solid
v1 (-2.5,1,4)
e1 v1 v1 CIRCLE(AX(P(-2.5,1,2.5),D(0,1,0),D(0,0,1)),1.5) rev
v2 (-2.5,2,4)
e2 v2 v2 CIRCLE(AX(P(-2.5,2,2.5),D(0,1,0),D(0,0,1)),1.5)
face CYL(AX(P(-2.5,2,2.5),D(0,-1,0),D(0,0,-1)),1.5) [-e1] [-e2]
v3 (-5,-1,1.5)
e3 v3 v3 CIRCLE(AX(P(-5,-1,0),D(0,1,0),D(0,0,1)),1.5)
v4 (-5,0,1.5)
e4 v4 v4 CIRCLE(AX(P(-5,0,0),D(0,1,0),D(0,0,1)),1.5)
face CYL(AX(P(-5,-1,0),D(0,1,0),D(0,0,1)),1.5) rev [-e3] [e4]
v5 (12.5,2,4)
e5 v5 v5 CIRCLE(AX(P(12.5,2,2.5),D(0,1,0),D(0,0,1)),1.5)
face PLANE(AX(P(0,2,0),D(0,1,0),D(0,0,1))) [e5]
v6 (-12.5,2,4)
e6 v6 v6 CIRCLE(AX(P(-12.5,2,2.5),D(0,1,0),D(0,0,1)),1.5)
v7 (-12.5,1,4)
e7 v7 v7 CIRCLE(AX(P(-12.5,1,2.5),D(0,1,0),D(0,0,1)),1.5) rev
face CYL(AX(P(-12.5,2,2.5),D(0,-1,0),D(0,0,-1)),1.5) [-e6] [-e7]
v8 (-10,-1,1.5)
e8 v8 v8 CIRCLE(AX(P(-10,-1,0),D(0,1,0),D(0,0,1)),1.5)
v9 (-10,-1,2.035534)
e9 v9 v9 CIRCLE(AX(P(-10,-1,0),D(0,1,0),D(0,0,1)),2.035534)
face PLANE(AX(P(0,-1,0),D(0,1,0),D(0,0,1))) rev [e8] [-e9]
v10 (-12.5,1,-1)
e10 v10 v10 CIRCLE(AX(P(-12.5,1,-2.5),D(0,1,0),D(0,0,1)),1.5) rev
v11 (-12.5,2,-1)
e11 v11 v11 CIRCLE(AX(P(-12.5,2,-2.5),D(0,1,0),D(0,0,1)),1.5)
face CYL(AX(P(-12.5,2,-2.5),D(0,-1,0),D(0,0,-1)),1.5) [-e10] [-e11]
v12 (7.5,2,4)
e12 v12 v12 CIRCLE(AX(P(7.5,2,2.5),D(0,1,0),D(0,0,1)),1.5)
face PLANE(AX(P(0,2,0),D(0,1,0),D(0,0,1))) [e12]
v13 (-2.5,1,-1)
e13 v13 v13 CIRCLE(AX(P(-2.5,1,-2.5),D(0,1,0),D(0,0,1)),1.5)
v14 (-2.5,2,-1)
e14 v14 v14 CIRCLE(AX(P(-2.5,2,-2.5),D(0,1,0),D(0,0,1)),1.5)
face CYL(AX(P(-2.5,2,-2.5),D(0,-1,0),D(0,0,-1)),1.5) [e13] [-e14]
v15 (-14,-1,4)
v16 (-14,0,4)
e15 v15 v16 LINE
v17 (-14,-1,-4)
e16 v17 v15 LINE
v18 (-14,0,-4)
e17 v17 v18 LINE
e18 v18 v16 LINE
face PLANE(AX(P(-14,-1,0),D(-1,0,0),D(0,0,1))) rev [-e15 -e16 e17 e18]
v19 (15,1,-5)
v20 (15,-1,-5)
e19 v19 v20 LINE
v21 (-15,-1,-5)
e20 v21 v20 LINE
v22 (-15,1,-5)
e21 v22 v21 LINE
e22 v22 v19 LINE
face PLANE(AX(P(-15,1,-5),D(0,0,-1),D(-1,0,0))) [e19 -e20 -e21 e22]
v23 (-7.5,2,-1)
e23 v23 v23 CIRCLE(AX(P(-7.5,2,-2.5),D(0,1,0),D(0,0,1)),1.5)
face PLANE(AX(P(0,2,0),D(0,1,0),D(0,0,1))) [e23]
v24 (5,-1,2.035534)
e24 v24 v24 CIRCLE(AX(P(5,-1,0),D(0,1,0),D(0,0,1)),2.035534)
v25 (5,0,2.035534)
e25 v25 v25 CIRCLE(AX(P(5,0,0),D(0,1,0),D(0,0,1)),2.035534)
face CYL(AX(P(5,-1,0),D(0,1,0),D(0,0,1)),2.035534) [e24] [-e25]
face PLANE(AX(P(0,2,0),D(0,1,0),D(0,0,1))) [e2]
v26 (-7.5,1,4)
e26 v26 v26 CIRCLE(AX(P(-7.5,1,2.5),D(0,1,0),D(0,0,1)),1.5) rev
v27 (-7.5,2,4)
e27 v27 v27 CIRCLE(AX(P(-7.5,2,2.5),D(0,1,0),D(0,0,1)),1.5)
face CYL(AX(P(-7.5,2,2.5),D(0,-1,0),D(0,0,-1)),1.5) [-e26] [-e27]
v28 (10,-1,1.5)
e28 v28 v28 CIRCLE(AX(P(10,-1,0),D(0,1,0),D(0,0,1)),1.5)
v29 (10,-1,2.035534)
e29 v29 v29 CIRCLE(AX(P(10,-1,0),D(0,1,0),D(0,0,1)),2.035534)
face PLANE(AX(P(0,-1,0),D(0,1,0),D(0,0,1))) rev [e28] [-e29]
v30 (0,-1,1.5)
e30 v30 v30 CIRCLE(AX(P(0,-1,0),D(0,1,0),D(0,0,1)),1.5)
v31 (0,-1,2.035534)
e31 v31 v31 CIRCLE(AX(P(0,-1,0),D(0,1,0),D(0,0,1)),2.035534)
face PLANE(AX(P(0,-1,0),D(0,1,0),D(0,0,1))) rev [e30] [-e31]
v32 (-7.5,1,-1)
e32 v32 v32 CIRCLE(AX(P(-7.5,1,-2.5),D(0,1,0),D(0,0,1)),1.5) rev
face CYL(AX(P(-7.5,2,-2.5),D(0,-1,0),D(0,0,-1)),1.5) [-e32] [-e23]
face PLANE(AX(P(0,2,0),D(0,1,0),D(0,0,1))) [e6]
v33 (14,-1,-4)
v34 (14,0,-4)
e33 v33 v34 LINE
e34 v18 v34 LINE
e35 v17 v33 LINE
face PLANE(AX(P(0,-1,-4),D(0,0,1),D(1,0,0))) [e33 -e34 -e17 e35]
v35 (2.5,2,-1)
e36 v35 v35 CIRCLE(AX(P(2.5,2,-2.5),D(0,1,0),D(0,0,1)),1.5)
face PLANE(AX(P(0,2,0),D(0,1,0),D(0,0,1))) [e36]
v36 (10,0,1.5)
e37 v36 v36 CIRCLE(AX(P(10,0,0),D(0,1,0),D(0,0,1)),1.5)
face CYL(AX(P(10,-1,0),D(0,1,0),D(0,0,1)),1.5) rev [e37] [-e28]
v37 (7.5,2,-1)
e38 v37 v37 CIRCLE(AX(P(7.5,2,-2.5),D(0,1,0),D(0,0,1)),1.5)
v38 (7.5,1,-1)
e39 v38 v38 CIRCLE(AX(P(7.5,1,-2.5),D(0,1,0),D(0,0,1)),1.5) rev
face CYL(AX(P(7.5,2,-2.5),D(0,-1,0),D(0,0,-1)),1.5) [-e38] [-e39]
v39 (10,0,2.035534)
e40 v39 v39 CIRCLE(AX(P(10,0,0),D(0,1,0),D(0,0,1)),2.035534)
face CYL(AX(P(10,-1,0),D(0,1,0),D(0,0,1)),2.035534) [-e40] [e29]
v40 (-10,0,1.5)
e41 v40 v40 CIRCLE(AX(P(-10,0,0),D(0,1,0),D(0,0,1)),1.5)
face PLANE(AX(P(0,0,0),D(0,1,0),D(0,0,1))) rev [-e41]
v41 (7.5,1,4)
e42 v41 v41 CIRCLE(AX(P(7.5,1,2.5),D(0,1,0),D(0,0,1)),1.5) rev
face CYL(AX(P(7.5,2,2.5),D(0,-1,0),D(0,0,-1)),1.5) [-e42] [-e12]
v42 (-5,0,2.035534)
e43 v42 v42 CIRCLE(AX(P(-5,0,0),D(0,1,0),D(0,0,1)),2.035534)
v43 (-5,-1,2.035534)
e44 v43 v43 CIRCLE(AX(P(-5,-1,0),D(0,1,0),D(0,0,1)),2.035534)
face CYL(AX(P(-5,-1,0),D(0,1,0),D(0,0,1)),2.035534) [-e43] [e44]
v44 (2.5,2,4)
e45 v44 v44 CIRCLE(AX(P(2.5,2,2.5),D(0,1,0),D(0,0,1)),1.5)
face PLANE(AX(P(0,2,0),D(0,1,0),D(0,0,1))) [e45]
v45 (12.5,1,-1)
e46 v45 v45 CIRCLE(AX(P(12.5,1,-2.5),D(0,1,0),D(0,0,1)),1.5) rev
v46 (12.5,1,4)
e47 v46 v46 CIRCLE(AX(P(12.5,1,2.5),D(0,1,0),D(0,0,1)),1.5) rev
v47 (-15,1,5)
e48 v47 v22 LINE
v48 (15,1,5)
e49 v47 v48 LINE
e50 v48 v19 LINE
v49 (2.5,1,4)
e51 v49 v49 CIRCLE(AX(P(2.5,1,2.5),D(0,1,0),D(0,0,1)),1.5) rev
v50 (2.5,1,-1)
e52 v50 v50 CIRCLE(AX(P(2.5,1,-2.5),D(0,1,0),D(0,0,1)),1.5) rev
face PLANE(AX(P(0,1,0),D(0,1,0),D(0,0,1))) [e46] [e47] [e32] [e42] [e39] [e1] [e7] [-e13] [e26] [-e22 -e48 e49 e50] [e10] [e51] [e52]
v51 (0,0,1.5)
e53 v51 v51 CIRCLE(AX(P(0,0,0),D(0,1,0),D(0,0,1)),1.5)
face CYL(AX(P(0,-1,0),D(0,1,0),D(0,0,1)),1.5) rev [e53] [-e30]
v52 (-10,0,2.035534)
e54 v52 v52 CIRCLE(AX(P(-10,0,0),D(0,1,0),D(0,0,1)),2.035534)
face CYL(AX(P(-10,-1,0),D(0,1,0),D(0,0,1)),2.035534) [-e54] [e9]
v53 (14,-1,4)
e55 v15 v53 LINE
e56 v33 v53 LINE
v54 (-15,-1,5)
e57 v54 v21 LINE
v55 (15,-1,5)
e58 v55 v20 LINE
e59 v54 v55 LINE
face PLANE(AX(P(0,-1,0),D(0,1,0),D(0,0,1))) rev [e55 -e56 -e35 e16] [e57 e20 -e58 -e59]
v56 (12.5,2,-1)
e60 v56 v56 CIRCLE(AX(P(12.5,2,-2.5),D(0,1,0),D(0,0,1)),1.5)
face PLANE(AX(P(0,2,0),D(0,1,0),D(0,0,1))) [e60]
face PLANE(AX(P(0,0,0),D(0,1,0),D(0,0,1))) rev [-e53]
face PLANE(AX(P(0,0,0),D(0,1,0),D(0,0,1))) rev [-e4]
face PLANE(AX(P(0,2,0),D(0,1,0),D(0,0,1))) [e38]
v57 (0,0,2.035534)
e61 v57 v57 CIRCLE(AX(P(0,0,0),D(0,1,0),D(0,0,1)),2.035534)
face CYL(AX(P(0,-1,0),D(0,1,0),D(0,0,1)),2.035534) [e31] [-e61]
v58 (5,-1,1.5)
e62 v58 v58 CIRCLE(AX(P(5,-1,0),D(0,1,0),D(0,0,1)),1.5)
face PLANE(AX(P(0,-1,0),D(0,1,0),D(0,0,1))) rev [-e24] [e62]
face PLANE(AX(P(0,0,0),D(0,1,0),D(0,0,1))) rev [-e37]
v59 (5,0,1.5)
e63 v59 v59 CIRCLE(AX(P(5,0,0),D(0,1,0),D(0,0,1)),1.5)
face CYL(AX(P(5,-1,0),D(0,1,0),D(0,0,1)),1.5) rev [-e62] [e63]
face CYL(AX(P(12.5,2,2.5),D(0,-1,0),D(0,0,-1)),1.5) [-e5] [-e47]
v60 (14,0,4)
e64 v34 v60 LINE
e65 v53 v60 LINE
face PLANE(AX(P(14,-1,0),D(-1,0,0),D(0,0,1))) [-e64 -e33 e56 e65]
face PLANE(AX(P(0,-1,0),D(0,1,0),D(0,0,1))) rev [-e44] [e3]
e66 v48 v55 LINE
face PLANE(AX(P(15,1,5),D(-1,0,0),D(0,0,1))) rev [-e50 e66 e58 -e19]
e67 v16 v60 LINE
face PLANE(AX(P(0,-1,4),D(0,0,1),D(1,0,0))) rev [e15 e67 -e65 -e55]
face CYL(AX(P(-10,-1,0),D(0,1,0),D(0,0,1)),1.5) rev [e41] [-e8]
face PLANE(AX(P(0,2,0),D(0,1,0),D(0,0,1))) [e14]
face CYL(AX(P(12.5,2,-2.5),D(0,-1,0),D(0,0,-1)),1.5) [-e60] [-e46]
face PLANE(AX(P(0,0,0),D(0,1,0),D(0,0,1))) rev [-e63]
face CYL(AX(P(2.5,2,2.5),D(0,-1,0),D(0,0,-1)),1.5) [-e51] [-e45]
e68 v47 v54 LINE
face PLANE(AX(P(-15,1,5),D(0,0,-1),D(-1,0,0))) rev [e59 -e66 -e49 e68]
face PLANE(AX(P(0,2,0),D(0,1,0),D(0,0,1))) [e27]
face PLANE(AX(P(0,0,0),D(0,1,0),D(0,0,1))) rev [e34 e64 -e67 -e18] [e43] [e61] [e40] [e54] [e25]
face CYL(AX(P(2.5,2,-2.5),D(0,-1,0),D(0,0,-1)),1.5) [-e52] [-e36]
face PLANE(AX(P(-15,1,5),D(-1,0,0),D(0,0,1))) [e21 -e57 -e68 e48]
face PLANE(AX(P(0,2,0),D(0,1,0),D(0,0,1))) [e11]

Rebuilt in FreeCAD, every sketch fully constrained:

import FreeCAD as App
import Part
import Sketcher
from FreeCAD import Vector

doc = App.newDocument("Part")
body = doc.addObject("PartDesign::Body", "Body")

# Sketch on XZ plane
sketch1 = body.newObject("Sketcher::SketchObject", "Sketch")
sketch1.AttachmentSupport = (doc.getObject("XZ_Plane"), [""])
sketch1.MapMode = "FlatFace"
sketch1.addGeometry(Part.Circle(Vector(-2.5, -2.5, 0), Vector(0, 0, 1), 1.5), False)
sketch1.addConstraint(Sketcher.Constraint("Diameter", 0, 3.0))
sketch1.addConstraint(Sketcher.Constraint("DistanceX", 0, 3, -1, 1, 2.5))
sketch1.addConstraint(Sketcher.Constraint("DistanceY", 0, 3, -1, 1, 2.5))
pad1 = body.newObject("PartDesign::Pad", "Pad")
pad1.Profile = sketch1
pad1.Length = 2
pad1.Reversed = True
body2 = doc.addObject("PartDesign::Body", "Body001")

# Sketch on XZ plane
sketch2 = body2.newObject("Sketcher::SketchObject", "Sketch001")
sketch2.AttachmentSupport = (doc.getObject("XZ_Plane001"), [""])
sketch2.MapMode = "FlatFace"
sketch2.addGeometry(Part.Circle(Vector(-7.5, -2.5, 0), Vector(0, 0, 1), 1.5), False)
sketch2.addConstraint(Sketcher.Constraint("Diameter", 0, 3.0))
sketch2.addConstraint(Sketcher.Constraint("DistanceX", 0, 3, -1, 1, 7.5))
sketch2.addConstraint(Sketcher.Constraint("DistanceY", 0, 3, -1, 1, 2.5))
pad2 = body2.newObject("PartDesign::Pad", "Pad001")
pad2.Profile = sketch2
pad2.Length = 2
pad2.Reversed = True
body3 = doc.addObject("PartDesign::Body", "Body002")

# Sketch on XZ plane
sketch3 = body3.newObject("Sketcher::SketchObject", "Sketch002")
sketch3.AttachmentSupport = (doc.getObject("XZ_Plane002"), [""])
sketch3.MapMode = "FlatFace"
sketch3.addGeometry(Part.Circle(Vector(-12.5, -2.5, 0), Vector(0, 0, 1), 1.5), False)
sketch3.addConstraint(Sketcher.Constraint("Diameter", 0, 3.0))
sketch3.addConstraint(Sketcher.Constraint("DistanceX", 0, 3, -1, 1, 12.5))
sketch3.addConstraint(Sketcher.Constraint("DistanceY", 0, 3, -1, 1, 2.5))
pad3 = body3.newObject("PartDesign::Pad", "Pad002")
pad3.Profile = sketch3
pad3.Length = 2
pad3.Reversed = True
body4 = doc.addObject("PartDesign::Body", "Body003")

# Sketch on XZ plane
sketch4 = body4.newObject("Sketcher::SketchObject", "Sketch003")
sketch4.AttachmentSupport = (doc.getObject("XZ_Plane003"), [""])
sketch4.MapMode = "FlatFace"
sketch4.addGeometry(Part.Circle(Vector(-12.5, 2.5, 0), Vector(0, 0, 1), 1.5), False)
sketch4.addConstraint(Sketcher.Constraint("Diameter", 0, 3.0))
sketch4.addConstraint(Sketcher.Constraint("DistanceX", 0, 3, -1, 1, 12.5))
sketch4.addConstraint(Sketcher.Constraint("DistanceY", -1, 1, 0, 3, 2.5))
pad4 = body4.newObject("PartDesign::Pad", "Pad003")
pad4.Profile = sketch4
pad4.Length = 2
pad4.Reversed = True
body5 = doc.addObject("PartDesign::Body", "Body004")

# Sketch on XZ plane
sketch5 = body5.newObject("Sketcher::SketchObject", "Sketch004")
sketch5.AttachmentSupport = (doc.getObject("XZ_Plane004"), [""])
sketch5.MapMode = "FlatFace"
sketch5.addGeometry(Part.Circle(Vector(-7.5, 2.5, 0), Vector(0, 0, 1), 1.5), False)
sketch5.addConstraint(Sketcher.Constraint("Diameter", 0, 3.0))
sketch5.addConstraint(Sketcher.Constraint("DistanceX", 0, 3, -1, 1, 7.5))
sketch5.addConstraint(Sketcher.Constraint("DistanceY", -1, 1, 0, 3, 2.5))
pad5 = body5.newObject("PartDesign::Pad", "Pad004")
pad5.Profile = sketch5
pad5.Length = 2
pad5.Reversed = True
body6 = doc.addObject("PartDesign::Body", "Body005")

# Sketch on XZ plane
sketch6 = body6.newObject("Sketcher::SketchObject", "Sketch005")
sketch6.AttachmentSupport = (doc.getObject("XZ_Plane005"), [""])
sketch6.MapMode = "FlatFace"
sketch6.addGeometry(Part.Circle(Vector(-2.5, 2.5, 0), Vector(0, 0, 1), 1.5), False)
sketch6.addConstraint(Sketcher.Constraint("Diameter", 0, 3.0))
sketch6.addConstraint(Sketcher.Constraint("DistanceX", 0, 3, -1, 1, 2.5))
sketch6.addConstraint(Sketcher.Constraint("DistanceY", -1, 1, 0, 3, 2.5))
pad6 = body6.newObject("PartDesign::Pad", "Pad005")
pad6.Profile = sketch6
pad6.Length = 2
pad6.Reversed = True
body7 = doc.addObject("PartDesign::Body", "Body006")

# Sketch on XZ plane
sketch7 = body7.newObject("Sketcher::SketchObject", "Sketch006")
sketch7.AttachmentSupport = (doc.getObject("XZ_Plane006"), [""])
sketch7.MapMode = "FlatFace"
sketch7.addGeometry(Part.Circle(Vector(2.5, -2.5, 0), Vector(0, 0, 1), 1.5), False)
sketch7.addConstraint(Sketcher.Constraint("Diameter", 0, 3.0))
sketch7.addConstraint(Sketcher.Constraint("DistanceX", -1, 1, 0, 3, 2.5))
sketch7.addConstraint(Sketcher.Constraint("DistanceY", 0, 3, -1, 1, 2.5))
pad7 = body7.newObject("PartDesign::Pad", "Pad006")
pad7.Profile = sketch7
pad7.Length = 2
pad7.Reversed = True
body8 = doc.addObject("PartDesign::Body", "Body007")

# Sketch on XZ plane
sketch8 = body8.newObject("Sketcher::SketchObject", "Sketch007")
sketch8.AttachmentSupport = (doc.getObject("XZ_Plane007"), [""])
sketch8.MapMode = "FlatFace"
sketch8.addGeometry(Part.Circle(Vector(7.5, -2.5, 0), Vector(0, 0, 1), 1.5), False)
sketch8.addConstraint(Sketcher.Constraint("Diameter", 0, 3.0))
sketch8.addConstraint(Sketcher.Constraint("DistanceX", -1, 1, 0, 3, 7.5))
sketch8.addConstraint(Sketcher.Constraint("DistanceY", 0, 3, -1, 1, 2.5))
pad8 = body8.newObject("PartDesign::Pad", "Pad007")
pad8.Profile = sketch8
pad8.Length = 2
pad8.Reversed = True
body9 = doc.addObject("PartDesign::Body", "Body008")

# Sketch on XZ plane
sketch9 = body9.newObject("Sketcher::SketchObject", "Sketch008")
sketch9.AttachmentSupport = (doc.getObject("XZ_Plane008"), [""])
sketch9.MapMode = "FlatFace"
sketch9.addGeometry(Part.Circle(Vector(12.5, -2.5, 0), Vector(0, 0, 1), 1.5), False)
sketch9.addConstraint(Sketcher.Constraint("Diameter", 0, 3.0))
sketch9.addConstraint(Sketcher.Constraint("DistanceX", -1, 1, 0, 3, 12.5))
sketch9.addConstraint(Sketcher.Constraint("DistanceY", 0, 3, -1, 1, 2.5))
pad9 = body9.newObject("PartDesign::Pad", "Pad008")
pad9.Profile = sketch9
pad9.Length = 2
pad9.Reversed = True
body10 = doc.addObject("PartDesign::Body", "Body009")

# Sketch on XZ plane
sketch10 = body10.newObject("Sketcher::SketchObject", "Sketch009")
sketch10.AttachmentSupport = (doc.getObject("XZ_Plane009"), [""])
sketch10.MapMode = "FlatFace"
sketch10.addGeometry(Part.Circle(Vector(12.5, 2.5, 0), Vector(0, 0, 1), 1.5), False)
sketch10.addConstraint(Sketcher.Constraint("Diameter", 0, 3.0))
sketch10.addConstraint(Sketcher.Constraint("DistanceX", -1, 1, 0, 3, 12.5))
sketch10.addConstraint(Sketcher.Constraint("DistanceY", -1, 1, 0, 3, 2.5))
pad10 = body10.newObject("PartDesign::Pad", "Pad009")
pad10.Profile = sketch10
pad10.Length = 2
pad10.Reversed = True
body11 = doc.addObject("PartDesign::Body", "Body010")

# Sketch on XZ plane
sketch11 = body11.newObject("Sketcher::SketchObject", "Sketch010")
sketch11.AttachmentSupport = (doc.getObject("XZ_Plane010"), [""])
sketch11.MapMode = "FlatFace"
sketch11.addGeometry(Part.Circle(Vector(7.5, 2.5, 0), Vector(0, 0, 1), 1.5), False)
sketch11.addConstraint(Sketcher.Constraint("Diameter", 0, 3.0))
sketch11.addConstraint(Sketcher.Constraint("DistanceX", -1, 1, 0, 3, 7.5))
sketch11.addConstraint(Sketcher.Constraint("DistanceY", -1, 1, 0, 3, 2.5))
pad11 = body11.newObject("PartDesign::Pad", "Pad010")
pad11.Profile = sketch11
pad11.Length = 2
pad11.Reversed = True
body12 = doc.addObject("PartDesign::Body", "Body011")

# Sketch on XZ plane
sketch12 = body12.newObject("Sketcher::SketchObject", "Sketch011")
sketch12.AttachmentSupport = (doc.getObject("XZ_Plane011"), [""])
sketch12.MapMode = "FlatFace"
sketch12.addGeometry(Part.Circle(Vector(2.5, 2.5, 0), Vector(0, 0, 1), 1.5), False)
sketch12.addConstraint(Sketcher.Constraint("Diameter", 0, 3.0))
sketch12.addConstraint(Sketcher.Constraint("DistanceX", -1, 1, 0, 3, 2.5))
sketch12.addConstraint(Sketcher.Constraint("DistanceY", -1, 1, 0, 3, 2.5))
pad12 = body12.newObject("PartDesign::Pad", "Pad011")
pad12.Profile = sketch12
pad12.Length = 2
pad12.Reversed = True
body.AllowCompound = True
doc.recompute()

boolean = body.newObject("PartDesign::Boolean", "Boolean")
boolean.Type = "Fuse"
boolean.addObjects([body2])
doc.recompute()

boolean2 = body.newObject("PartDesign::Boolean", "Boolean001")
boolean2.Type = "Fuse"
boolean2.addObjects([body3])
doc.recompute()

boolean3 = body.newObject("PartDesign::Boolean", "Boolean002")
boolean3.Type = "Fuse"
boolean3.addObjects([body4])
doc.recompute()

boolean4 = body.newObject("PartDesign::Boolean", "Boolean003")
boolean4.Type = "Fuse"
boolean4.addObjects([body5])
doc.recompute()

boolean5 = body.newObject("PartDesign::Boolean", "Boolean004")
boolean5.Type = "Fuse"
boolean5.addObjects([body6])
doc.recompute()

boolean6 = body.newObject("PartDesign::Boolean", "Boolean005")
boolean6.Type = "Fuse"
boolean6.addObjects([body7])
doc.recompute()

boolean7 = body.newObject("PartDesign::Boolean", "Boolean006")
boolean7.Type = "Fuse"
boolean7.addObjects([body8])
doc.recompute()

boolean8 = body.newObject("PartDesign::Boolean", "Boolean007")
boolean8.Type = "Fuse"
boolean8.addObjects([body9])
doc.recompute()

boolean9 = body.newObject("PartDesign::Boolean", "Boolean008")
boolean9.Type = "Fuse"
boolean9.addObjects([body10])
doc.recompute()

boolean10 = body.newObject("PartDesign::Boolean", "Boolean009")
boolean10.Type = "Fuse"
boolean10.addObjects([body11])
doc.recompute()

boolean11 = body.newObject("PartDesign::Boolean", "Boolean010")
boolean11.Type = "Fuse"
boolean11.addObjects([body12])

# Sketch on XZ plane
sketch13 = body.newObject("Sketcher::SketchObject", "Sketch012")
sketch13.AttachmentSupport = (doc.getObject("XZ_Plane"), [""])
sketch13.MapMode = "FlatFace"
sketch13.addGeometry(Part.LineSegment(Vector(-15, -5, 0), Vector(-15, 5, 0)), False)
sketch13.addGeometry(Part.LineSegment(Vector(-15, 5, 0), Vector(15, 5, 0)), False)
sketch13.addGeometry(Part.LineSegment(Vector(15, 5, 0), Vector(15, -5, 0)), False)
sketch13.addGeometry(Part.LineSegment(Vector(15, -5, 0), Vector(-15, -5, 0)), False)
sketch13.addConstraint(Sketcher.Constraint("Coincident", 0, 2, 1, 1))
sketch13.addConstraint(Sketcher.Constraint("Coincident", 1, 2, 2, 1))
sketch13.addConstraint(Sketcher.Constraint("Coincident", 2, 2, 3, 1))
sketch13.addConstraint(Sketcher.Constraint("Coincident", 3, 2, 0, 1))
sketch13.addConstraint(Sketcher.Constraint("Vertical", 0))
sketch13.addConstraint(Sketcher.Constraint("Horizontal", 1))
sketch13.addConstraint(Sketcher.Constraint("Vertical", 2))
sketch13.addConstraint(Sketcher.Constraint("Horizontal", 3))
sketch13.addConstraint(Sketcher.Constraint("Symmetric", 0, 2, 2, 2, -1, 1))
sketch13.addConstraint(Sketcher.Constraint("DistanceX", 1, 1, 1, 2, 30.0))
sketch13.addConstraint(Sketcher.Constraint("DistanceY", 0, 1, 0, 2, 10.0))
pad13 = body.newObject("PartDesign::Pad", "Pad012")
pad13.Profile = sketch13
pad13.Length = 1
pad13.Reversed = True

# Sketch on XZ plane
sketch14 = body.newObject("Sketcher::SketchObject", "Sketch013")
sketch14.AttachmentSupport = (doc.getObject("XZ_Plane"), [""])
sketch14.MapMode = "FlatFace"
sketch14.addGeometry(Part.LineSegment(Vector(-15, -5, 0), Vector(-15, 5, 0)), False)
sketch14.addGeometry(Part.LineSegment(Vector(-15, 5, 0), Vector(15, 5, 0)), False)
sketch14.addGeometry(Part.LineSegment(Vector(15, 5, 0), Vector(15, -5, 0)), False)
sketch14.addGeometry(Part.LineSegment(Vector(15, -5, 0), Vector(-15, -5, 0)), False)
sketch14.addGeometry(Part.LineSegment(Vector(14, 4, 0), Vector(-14, 4, 0)), False)
sketch14.addGeometry(Part.LineSegment(Vector(-14, 4, 0), Vector(-14, -4, 0)), False)
sketch14.addGeometry(Part.LineSegment(Vector(-14, -4, 0), Vector(14, -4, 0)), False)
sketch14.addGeometry(Part.LineSegment(Vector(14, -4, 0), Vector(14, 4, 0)), False)
sketch14.addGeometry(Part.Circle(Vector(-10, 0, 0), Vector(0, 0, 1), 2.035534), False)
sketch14.addGeometry(Part.Circle(Vector(-10, 0, 0), Vector(0, 0, 1), 1.5), False)
sketch14.addGeometry(Part.Circle(Vector(-5, 0, 0), Vector(0, 0, 1), 2.035534), False)
sketch14.addGeometry(Part.Circle(Vector(-5, 0, 0), Vector(0, 0, 1), 1.5), False)
sketch14.addGeometry(Part.Circle(Vector(0, 0, 0), Vector(0, 0, 1), 2.035534), False)
sketch14.addGeometry(Part.Circle(Vector(0, 0, 0), Vector(0, 0, 1), 1.5), False)
sketch14.addGeometry(Part.Circle(Vector(5, 0, 0), Vector(0, 0, 1), 2.035534), False)
sketch14.addGeometry(Part.Circle(Vector(5, 0, 0), Vector(0, 0, 1), 1.5), False)
sketch14.addGeometry(Part.Circle(Vector(10, 0, 0), Vector(0, 0, 1), 2.035534), False)
sketch14.addGeometry(Part.Circle(Vector(10, 0, 0), Vector(0, 0, 1), 1.5), False)
sketch14.addConstraint(Sketcher.Constraint("Coincident", 0, 2, 1, 1))
sketch14.addConstraint(Sketcher.Constraint("Coincident", 1, 2, 2, 1))
sketch14.addConstraint(Sketcher.Constraint("Coincident", 2, 2, 3, 1))
sketch14.addConstraint(Sketcher.Constraint("Coincident", 3, 2, 0, 1))
sketch14.addConstraint(Sketcher.Constraint("Coincident", 4, 2, 5, 1))
sketch14.addConstraint(Sketcher.Constraint("Coincident", 5, 2, 6, 1))
sketch14.addConstraint(Sketcher.Constraint("Coincident", 6, 2, 7, 1))
sketch14.addConstraint(Sketcher.Constraint("Coincident", 7, 2, 4, 1))
sketch14.addConstraint(Sketcher.Constraint("Vertical", 0))
sketch14.addConstraint(Sketcher.Constraint("Horizontal", 1))
sketch14.addConstraint(Sketcher.Constraint("Vertical", 2))
sketch14.addConstraint(Sketcher.Constraint("Horizontal", 3))
sketch14.addConstraint(Sketcher.Constraint("Horizontal", 4))
sketch14.addConstraint(Sketcher.Constraint("Vertical", 5))
sketch14.addConstraint(Sketcher.Constraint("Horizontal", 6))
sketch14.addConstraint(Sketcher.Constraint("Vertical", 7))
sketch14.addConstraint(Sketcher.Constraint("Coincident", 12, 3, -1, 1))
sketch14.addConstraint(Sketcher.Constraint("Coincident", 13, 3, -1, 1))
sketch14.addConstraint(Sketcher.Constraint("Coincident", 9, 3, 8, 3))
sketch14.addConstraint(Sketcher.Constraint("Coincident", 11, 3, 10, 3))
sketch14.addConstraint(Sketcher.Constraint("Coincident", 15, 3, 14, 3))
sketch14.addConstraint(Sketcher.Constraint("Coincident", 17, 3, 16, 3))
sketch14.addConstraint(Sketcher.Constraint("Equal", 8, 10))
sketch14.addConstraint(Sketcher.Constraint("Equal", 9, 11))
sketch14.addConstraint(Sketcher.Constraint("Equal", 10, 12))
sketch14.addConstraint(Sketcher.Constraint("Equal", 11, 13))
sketch14.addConstraint(Sketcher.Constraint("Equal", 12, 14))
sketch14.addConstraint(Sketcher.Constraint("Equal", 13, 15))
sketch14.addConstraint(Sketcher.Constraint("Equal", 14, 16))
sketch14.addConstraint(Sketcher.Constraint("Equal", 15, 17))
sketch14.addConstraint(Sketcher.Constraint("Symmetric", 10, 3, 14, 3, -1, 1))
sketch14.addConstraint(Sketcher.Constraint("Symmetric", 8, 3, 16, 3, -1, 1))
sketch14.addConstraint(Sketcher.Constraint("Symmetric", 0, 2, 2, 2, -1, 1))
sketch14.addConstraint(Sketcher.Constraint("Symmetric", 4, 2, 6, 2, -1, 1))
sketch14.addConstraint(Sketcher.Constraint("PointOnObject", 8, 3, -1))
sketch14.addConstraint(Sketcher.Constraint("PointOnObject", 10, 3, -1))
sketch14.addConstraint(Sketcher.Constraint("Diameter", 9, 3.0))
sketch14.addConstraint(Sketcher.Constraint("DistanceX", 1, 1, 1, 2, 30.0))
sketch14.addConstraint(Sketcher.Constraint("DistanceX", 4, 2, 4, 1, 28.0))
sketch14.addConstraint(Sketcher.Constraint("DistanceY", 0, 1, 0, 2, 10.0))
sketch14.addConstraint(Sketcher.Constraint("DistanceY", 5, 2, 5, 1, 8.0))
sketch14.addConstraint(Sketcher.Constraint("DistanceX", 8, 3, -1, 1, 10.0))
sketch14.addConstraint(Sketcher.Constraint("DistanceX", 10, 3, -1, 1, 5.0))
sketch14.addConstraint(Sketcher.Constraint("Diameter", 8, 4.071068))
pad14 = body.newObject("PartDesign::Pad", "Pad013")
pad14.Profile = sketch14
pad14.Length = 1

doc.recompute()
